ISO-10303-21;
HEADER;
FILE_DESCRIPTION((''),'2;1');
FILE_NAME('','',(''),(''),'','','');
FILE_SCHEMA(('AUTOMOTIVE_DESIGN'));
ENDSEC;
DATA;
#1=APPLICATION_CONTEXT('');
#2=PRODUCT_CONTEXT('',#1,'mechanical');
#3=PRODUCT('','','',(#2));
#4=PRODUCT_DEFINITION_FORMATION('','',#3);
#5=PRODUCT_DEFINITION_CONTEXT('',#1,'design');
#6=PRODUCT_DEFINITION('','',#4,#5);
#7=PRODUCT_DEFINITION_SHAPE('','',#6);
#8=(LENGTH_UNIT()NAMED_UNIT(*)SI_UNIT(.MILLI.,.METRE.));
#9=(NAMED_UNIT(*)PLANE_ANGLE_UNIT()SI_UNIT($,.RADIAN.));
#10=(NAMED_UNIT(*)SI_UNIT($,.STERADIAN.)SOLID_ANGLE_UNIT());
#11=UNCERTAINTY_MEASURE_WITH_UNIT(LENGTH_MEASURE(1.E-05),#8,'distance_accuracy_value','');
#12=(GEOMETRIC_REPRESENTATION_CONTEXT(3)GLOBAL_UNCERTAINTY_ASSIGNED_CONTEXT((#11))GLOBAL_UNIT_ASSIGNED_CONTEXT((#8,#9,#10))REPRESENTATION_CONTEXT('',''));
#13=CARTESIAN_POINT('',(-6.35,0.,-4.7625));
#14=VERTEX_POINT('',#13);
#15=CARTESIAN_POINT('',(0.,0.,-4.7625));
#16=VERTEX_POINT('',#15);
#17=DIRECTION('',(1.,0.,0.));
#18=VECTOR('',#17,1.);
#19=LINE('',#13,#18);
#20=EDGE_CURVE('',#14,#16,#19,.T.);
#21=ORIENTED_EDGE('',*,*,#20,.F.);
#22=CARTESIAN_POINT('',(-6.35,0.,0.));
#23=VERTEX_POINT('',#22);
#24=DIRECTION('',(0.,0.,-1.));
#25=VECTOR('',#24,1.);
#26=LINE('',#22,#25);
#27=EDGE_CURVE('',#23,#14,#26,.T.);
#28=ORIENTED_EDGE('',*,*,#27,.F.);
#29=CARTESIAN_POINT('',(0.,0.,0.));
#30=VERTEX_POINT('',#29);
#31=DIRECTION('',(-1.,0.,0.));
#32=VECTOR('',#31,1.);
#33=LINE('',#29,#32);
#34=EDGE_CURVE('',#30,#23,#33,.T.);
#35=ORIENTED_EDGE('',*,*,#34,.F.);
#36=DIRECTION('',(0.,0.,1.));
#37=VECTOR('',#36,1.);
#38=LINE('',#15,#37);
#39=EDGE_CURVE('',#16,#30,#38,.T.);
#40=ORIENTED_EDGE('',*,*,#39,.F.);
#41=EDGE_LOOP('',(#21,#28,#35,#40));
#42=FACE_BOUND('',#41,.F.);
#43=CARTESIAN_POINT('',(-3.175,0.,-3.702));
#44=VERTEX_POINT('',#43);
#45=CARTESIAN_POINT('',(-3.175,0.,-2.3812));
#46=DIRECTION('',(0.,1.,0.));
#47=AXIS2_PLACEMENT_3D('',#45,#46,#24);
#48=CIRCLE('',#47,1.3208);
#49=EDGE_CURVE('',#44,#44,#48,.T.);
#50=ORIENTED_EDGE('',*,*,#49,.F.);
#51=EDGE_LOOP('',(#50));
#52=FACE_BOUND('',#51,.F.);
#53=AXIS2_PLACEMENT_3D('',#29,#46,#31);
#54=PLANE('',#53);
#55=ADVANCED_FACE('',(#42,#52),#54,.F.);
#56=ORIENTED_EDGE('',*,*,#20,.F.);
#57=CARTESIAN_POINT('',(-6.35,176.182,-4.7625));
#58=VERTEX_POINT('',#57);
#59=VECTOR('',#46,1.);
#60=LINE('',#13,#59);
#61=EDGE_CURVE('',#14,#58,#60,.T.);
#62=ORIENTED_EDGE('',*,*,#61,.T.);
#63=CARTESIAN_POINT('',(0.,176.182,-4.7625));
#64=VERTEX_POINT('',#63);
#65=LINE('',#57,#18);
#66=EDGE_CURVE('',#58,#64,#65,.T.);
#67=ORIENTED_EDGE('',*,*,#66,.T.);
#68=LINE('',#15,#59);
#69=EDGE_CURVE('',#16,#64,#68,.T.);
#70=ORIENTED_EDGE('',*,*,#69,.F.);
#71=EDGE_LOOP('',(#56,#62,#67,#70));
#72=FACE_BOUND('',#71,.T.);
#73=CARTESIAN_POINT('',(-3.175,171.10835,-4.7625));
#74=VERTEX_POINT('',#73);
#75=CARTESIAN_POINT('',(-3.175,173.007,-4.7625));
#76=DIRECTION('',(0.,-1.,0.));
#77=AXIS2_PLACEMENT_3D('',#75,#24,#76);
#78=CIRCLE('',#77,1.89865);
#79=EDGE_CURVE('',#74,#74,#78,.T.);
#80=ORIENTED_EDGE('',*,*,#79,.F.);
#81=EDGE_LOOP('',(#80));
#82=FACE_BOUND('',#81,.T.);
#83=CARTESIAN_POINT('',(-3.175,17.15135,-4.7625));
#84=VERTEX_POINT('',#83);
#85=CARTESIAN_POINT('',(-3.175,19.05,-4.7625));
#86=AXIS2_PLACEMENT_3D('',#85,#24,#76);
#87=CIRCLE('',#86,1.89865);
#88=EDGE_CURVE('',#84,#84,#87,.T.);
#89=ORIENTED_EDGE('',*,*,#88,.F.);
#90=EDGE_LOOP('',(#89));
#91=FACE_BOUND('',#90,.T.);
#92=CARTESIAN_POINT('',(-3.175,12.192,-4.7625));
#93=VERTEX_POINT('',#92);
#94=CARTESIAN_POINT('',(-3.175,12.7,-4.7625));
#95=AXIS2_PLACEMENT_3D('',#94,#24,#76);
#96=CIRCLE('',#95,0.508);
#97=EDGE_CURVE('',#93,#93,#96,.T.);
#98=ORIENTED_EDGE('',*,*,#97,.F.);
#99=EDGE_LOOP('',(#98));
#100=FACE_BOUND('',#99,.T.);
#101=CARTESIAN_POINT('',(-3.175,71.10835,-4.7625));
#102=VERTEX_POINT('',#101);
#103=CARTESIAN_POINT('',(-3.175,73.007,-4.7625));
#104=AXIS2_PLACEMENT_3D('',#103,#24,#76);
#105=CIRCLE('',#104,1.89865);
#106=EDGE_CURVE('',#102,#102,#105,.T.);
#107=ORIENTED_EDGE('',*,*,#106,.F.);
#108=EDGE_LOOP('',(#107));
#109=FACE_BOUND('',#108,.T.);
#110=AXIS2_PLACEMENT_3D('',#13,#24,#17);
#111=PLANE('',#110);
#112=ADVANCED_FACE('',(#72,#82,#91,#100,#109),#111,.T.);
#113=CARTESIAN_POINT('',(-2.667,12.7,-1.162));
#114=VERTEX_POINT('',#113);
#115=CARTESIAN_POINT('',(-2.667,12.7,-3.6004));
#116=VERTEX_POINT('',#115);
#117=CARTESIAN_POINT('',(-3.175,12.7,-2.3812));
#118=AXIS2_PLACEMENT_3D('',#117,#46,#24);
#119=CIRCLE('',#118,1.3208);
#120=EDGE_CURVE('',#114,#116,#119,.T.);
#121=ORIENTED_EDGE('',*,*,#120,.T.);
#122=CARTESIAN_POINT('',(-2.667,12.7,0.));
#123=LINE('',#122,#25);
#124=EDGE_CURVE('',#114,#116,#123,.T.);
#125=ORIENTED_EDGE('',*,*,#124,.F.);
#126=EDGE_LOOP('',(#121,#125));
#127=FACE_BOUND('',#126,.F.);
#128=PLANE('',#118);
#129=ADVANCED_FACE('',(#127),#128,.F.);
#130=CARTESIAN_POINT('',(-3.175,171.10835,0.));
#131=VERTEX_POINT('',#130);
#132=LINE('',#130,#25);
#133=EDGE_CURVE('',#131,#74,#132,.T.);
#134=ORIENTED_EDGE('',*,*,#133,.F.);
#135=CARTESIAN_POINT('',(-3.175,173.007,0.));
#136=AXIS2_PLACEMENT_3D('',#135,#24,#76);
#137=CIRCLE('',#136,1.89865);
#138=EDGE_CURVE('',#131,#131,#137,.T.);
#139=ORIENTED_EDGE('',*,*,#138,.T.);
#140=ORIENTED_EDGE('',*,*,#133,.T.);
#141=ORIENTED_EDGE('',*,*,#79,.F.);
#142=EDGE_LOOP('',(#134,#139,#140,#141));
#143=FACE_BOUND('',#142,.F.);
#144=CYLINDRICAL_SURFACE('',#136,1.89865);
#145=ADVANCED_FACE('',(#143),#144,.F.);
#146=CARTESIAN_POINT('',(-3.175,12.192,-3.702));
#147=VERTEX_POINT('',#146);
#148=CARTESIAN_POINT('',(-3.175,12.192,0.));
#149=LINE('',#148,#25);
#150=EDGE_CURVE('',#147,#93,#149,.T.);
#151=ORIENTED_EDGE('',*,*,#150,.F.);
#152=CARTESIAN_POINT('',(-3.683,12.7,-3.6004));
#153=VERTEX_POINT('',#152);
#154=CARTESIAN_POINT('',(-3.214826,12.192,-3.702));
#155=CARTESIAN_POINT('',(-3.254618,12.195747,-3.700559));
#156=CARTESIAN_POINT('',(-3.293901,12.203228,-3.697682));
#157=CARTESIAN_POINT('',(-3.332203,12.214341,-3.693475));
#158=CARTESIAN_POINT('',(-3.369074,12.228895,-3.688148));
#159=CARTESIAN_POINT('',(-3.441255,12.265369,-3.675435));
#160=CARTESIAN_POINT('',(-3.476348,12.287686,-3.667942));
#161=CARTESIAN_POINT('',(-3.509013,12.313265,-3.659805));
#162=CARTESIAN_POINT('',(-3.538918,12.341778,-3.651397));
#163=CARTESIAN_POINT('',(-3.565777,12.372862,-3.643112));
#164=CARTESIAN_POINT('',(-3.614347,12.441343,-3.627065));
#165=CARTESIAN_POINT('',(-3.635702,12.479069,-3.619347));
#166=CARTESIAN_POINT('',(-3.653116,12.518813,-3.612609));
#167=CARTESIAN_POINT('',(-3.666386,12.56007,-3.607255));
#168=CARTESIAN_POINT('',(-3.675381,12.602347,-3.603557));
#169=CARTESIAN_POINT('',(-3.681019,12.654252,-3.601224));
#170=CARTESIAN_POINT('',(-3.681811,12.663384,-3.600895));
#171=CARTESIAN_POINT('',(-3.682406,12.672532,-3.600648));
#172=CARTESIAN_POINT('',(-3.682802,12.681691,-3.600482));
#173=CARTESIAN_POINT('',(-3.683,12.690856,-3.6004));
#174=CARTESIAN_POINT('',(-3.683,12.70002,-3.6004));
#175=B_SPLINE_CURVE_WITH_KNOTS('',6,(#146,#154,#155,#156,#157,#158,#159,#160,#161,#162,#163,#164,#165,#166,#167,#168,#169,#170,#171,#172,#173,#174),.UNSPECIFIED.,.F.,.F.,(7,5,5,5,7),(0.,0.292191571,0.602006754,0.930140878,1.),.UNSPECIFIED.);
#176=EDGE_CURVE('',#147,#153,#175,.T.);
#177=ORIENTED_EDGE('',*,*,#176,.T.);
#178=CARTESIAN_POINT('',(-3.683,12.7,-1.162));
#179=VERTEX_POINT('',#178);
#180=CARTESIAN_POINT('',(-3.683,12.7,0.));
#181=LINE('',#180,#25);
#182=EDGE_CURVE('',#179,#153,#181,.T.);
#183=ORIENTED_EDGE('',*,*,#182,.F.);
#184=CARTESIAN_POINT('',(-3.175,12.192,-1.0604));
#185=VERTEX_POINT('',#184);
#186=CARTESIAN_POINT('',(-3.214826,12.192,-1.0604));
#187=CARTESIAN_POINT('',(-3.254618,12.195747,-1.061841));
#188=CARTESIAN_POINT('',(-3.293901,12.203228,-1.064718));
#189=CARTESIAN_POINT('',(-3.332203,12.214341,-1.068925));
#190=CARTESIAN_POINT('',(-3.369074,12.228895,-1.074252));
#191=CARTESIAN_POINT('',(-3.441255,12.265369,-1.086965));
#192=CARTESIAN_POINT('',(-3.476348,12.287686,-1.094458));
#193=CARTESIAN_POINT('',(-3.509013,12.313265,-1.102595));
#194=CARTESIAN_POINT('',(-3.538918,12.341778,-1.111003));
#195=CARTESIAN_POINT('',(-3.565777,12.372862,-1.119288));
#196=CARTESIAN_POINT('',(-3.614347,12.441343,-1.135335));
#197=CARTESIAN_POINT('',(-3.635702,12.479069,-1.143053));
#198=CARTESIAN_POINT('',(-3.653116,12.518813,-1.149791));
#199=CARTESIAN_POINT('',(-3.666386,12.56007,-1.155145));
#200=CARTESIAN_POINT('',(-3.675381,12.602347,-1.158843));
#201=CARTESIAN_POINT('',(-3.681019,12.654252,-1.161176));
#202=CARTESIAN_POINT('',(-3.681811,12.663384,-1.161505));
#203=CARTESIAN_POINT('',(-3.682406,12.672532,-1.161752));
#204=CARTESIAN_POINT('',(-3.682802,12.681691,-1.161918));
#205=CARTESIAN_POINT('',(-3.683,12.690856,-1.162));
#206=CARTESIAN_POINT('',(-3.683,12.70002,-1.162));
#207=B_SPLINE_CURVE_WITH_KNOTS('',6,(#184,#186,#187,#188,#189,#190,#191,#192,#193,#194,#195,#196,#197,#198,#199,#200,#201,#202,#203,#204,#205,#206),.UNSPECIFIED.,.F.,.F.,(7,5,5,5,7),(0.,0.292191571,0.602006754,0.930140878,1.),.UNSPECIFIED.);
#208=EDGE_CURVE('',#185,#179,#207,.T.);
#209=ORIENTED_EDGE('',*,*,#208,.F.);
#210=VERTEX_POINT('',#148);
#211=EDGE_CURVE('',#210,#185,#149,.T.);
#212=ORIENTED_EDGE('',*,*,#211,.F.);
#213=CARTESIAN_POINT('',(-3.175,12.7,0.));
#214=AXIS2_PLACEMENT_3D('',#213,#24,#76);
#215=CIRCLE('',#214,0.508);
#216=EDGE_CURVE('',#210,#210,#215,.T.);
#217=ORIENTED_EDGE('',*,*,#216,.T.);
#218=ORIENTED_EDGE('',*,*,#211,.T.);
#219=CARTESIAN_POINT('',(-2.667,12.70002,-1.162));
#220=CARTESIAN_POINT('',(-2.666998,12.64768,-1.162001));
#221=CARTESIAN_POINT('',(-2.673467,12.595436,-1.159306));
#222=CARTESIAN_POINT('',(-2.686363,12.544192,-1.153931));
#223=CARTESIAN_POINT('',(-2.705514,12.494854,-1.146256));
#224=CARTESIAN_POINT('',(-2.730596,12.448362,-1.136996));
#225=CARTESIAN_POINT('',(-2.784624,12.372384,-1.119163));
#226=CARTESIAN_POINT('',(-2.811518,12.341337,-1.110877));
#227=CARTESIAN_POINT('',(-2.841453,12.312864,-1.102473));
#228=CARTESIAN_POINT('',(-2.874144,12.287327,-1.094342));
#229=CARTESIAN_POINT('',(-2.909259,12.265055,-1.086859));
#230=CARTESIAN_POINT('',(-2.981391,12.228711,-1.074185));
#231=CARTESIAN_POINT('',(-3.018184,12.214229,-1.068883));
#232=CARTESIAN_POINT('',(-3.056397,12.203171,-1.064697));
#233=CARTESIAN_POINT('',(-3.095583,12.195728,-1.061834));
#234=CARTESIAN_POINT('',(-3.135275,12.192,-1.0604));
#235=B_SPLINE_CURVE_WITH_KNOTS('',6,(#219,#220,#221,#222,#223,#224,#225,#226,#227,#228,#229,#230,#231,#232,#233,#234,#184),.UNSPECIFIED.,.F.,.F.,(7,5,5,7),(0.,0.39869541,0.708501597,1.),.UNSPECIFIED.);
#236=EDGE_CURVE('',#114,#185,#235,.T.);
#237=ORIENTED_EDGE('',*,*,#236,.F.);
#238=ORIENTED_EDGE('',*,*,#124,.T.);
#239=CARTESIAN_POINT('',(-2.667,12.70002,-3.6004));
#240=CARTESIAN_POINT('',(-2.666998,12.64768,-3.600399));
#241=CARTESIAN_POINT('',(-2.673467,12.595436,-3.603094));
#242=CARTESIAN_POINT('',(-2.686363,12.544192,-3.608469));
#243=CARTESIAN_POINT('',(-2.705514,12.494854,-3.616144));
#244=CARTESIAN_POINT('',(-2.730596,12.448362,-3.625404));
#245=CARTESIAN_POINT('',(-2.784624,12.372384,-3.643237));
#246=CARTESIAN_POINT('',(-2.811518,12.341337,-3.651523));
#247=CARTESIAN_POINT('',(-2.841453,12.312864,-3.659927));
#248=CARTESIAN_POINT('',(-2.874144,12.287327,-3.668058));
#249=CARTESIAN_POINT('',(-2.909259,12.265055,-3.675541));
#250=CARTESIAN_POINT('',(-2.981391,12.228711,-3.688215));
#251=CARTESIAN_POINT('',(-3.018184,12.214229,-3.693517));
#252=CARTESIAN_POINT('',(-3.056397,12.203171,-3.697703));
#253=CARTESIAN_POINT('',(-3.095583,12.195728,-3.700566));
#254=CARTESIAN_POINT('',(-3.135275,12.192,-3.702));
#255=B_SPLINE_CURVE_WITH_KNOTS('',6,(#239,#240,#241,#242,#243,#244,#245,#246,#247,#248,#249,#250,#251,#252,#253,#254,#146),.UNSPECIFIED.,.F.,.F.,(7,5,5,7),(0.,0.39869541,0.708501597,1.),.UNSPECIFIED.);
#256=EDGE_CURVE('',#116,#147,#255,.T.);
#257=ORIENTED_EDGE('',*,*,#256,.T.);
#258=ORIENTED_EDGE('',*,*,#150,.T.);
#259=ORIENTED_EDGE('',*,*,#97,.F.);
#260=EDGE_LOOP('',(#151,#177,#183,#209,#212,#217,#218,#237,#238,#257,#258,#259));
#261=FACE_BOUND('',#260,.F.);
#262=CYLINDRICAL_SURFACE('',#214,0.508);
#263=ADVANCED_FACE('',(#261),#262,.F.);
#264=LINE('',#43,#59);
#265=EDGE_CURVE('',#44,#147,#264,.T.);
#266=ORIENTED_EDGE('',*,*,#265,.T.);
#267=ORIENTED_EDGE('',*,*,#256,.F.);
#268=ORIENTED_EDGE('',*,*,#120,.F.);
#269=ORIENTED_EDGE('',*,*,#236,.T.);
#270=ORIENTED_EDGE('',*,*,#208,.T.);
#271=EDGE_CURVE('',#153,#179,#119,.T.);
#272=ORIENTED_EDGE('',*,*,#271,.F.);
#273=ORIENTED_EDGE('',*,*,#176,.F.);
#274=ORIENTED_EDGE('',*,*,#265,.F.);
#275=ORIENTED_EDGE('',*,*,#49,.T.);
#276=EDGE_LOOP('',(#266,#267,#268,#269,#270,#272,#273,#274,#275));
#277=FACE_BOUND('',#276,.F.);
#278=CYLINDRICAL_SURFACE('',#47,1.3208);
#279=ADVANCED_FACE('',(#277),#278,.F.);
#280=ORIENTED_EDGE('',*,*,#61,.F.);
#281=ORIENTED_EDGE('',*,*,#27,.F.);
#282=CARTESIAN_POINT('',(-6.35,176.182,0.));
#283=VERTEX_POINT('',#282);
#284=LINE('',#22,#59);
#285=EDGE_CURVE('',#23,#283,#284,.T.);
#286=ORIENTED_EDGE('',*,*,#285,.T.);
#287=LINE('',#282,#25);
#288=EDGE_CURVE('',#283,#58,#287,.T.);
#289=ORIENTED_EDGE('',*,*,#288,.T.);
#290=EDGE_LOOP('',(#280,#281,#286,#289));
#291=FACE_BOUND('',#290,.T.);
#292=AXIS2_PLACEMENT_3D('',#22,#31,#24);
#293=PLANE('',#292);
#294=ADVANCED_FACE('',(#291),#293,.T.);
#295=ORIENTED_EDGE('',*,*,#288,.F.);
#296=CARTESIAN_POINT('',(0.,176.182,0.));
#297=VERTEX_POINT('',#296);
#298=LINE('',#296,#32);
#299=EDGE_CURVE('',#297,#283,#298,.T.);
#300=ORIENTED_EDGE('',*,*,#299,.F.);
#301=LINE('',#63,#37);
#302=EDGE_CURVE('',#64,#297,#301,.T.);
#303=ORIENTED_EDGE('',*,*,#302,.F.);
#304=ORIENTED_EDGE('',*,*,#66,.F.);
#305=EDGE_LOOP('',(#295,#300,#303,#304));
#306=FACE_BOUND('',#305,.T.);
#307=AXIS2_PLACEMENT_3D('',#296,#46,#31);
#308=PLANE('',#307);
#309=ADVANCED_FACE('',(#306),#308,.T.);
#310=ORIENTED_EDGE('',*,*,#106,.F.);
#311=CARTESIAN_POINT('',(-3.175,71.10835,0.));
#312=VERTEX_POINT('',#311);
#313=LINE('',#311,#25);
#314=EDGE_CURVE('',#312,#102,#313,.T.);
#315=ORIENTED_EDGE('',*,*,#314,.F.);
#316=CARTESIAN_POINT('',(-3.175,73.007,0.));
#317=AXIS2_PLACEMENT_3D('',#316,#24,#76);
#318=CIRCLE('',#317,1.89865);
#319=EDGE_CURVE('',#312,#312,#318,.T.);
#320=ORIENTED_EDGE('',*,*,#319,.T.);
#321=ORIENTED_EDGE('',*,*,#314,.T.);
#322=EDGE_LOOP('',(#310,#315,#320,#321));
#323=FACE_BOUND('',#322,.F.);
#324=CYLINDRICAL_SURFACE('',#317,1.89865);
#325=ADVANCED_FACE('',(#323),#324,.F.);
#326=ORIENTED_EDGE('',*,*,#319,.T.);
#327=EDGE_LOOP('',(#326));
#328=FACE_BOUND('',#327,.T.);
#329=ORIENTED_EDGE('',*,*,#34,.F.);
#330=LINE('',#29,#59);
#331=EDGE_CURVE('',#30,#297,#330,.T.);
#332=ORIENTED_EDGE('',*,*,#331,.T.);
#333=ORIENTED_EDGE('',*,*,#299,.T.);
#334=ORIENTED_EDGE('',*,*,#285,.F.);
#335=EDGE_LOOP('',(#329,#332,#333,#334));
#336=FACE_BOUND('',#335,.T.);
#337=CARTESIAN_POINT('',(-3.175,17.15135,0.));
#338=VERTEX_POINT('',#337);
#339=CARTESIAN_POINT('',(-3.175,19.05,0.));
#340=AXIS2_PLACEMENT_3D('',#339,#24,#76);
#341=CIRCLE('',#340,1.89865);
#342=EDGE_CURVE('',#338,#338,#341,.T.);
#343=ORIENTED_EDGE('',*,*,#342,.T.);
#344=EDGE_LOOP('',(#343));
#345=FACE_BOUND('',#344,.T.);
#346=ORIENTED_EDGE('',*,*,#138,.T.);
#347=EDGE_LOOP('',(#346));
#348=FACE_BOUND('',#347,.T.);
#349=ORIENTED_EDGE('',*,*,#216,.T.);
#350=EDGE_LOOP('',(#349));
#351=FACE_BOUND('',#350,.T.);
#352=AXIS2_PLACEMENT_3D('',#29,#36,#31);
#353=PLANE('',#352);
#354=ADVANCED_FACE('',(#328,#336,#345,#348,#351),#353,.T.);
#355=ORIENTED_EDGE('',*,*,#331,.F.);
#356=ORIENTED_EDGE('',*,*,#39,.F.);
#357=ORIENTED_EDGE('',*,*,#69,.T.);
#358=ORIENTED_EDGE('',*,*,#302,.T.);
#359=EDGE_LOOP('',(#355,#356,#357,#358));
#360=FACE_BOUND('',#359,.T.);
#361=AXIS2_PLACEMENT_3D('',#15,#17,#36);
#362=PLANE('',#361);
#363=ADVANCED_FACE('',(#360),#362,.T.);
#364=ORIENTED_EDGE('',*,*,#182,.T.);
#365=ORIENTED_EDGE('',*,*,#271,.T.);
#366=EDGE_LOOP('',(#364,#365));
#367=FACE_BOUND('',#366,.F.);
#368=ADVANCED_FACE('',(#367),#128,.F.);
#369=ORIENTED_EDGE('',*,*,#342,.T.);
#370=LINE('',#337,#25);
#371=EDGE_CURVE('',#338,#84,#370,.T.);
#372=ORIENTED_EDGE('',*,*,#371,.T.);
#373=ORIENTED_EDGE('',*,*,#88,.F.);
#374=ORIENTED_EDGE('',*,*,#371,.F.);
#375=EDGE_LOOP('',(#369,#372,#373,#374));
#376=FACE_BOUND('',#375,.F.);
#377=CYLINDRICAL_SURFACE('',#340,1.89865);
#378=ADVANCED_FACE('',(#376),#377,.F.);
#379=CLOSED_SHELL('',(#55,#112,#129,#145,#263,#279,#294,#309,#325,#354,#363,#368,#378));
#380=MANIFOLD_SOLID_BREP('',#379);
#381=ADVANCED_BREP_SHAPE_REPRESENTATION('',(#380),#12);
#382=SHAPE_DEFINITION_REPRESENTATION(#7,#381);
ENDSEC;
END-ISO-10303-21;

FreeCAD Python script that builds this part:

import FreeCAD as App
import Part
import Sketcher

V = App.Vector
Q = App.Units.Quantity


def add_polygon(sketch, points):
    """Adds a closed chain of lines whose ends are joined by coincident constraints."""
    first, n = sketch.GeometryCount, len(points)
    for a, b in zip(points, points[1:] + points[:1]):
        sketch.addGeometry(Part.LineSegment(App.Vector(*a, 0), App.Vector(*b, 0)), False)
    for i in range(n):
        sketch.addConstraint(Sketcher.Constraint("Coincident", first + i, 2, first + (i + 1) % n, 1))

doc = App.newDocument("Part")
body = doc.addObject("PartDesign::Body", "Body")

# Sketch on XZ plane
sketch1 = body.newObject("Sketcher::SketchObject", "Sketch")
sketch1.AttachmentSupport = (doc.getObject("XZ_Plane"), [""])
sketch1.MapMode = "FlatFace"
add_polygon(sketch1, [(-6.3, 0), (0, 0), (0, -4.8), (-6.3, -4.8)])  # lines 0-3
sketch1.addConstraint([
    Sketcher.Constraint("Horizontal", 0),
    Sketcher.Constraint("Vertical", 1),
    Sketcher.Constraint("Horizontal", 2),
    Sketcher.Constraint("Vertical", 3),
    Sketcher.Constraint("Coincident", 0, 2, -1, 1),
    Sketcher.Constraint("DistanceX", 0, 1, 0, 2, Q("0.25 in")),
    Sketcher.Constraint("DistanceY", 1, 2, 1, 1, Q("0.1875 in")),
])
pad1 = body.newObject("PartDesign::Pad", "Pad")
pad1.Profile = sketch1
pad1.Length = Q("6.9362992 in")
pad1.Reversed = True

# Sketch on XY plane
sketch2 = body.newObject("Sketcher::SketchObject", "Sketch001")
sketch2.AttachmentSupport = (doc.getObject("XY_Plane"), [""])
sketch2.MapMode = "FlatFace"
sketch2.addGeometry(Part.Circle(V(-3.2, 19.1, 0), V(0, 0, 1), 1.9), False)
sketch2.addConstraint([
    Sketcher.Constraint("Diameter", 0, Q("0.1495 in")),
    Sketcher.Constraint("DistanceY", -1, 1, 0, 3, Q("0.75 in")),
    Sketcher.Constraint("DistanceX", 0, 3, -1, 1, Q("0.125 in")),
])
doc.recompute()
hole = body.newObject("PartDesign::Hole", "Hole")
hole.Profile = sketch2
hole.ThreadType = "None"
hole.Diameter = Q("0.1495 in")
hole.DepthType = "ThroughAll"

# Sketch on XY plane
sketch3 = body.newObject("Sketcher::SketchObject", "Sketch002")
sketch3.AttachmentSupport = (doc.getObject("XY_Plane"), [""])
sketch3.MapMode = "FlatFace"
sketch3.addGeometry(Part.Circle(V(-3.2, 12.7, 0), V(0, 0, 1), 0.5), False)
sketch3.addConstraint([
    Sketcher.Constraint("Diameter", 0, Q("0.04 in")),
    Sketcher.Constraint("DistanceY", -1, 1, 0, 3, Q("0.5 in")),
    Sketcher.Constraint("DistanceX", 0, 3, -1, 1, Q("0.125 in")),
])
doc.recompute()
hole2 = body.newObject("PartDesign::Hole", "Hole001")
hole2.Profile = sketch3
hole2.ThreadType = "None"
hole2.Diameter = Q("0.04 in")
hole2.DepthType = "ThroughAll"

# Sketch on XY plane
sketch4 = body.newObject("Sketcher::SketchObject", "Sketch003")
sketch4.AttachmentSupport = (doc.getObject("XY_Plane"), [""])
sketch4.MapMode = "FlatFace"
sketch4.addGeometry(Part.Circle(V(-3.2, 173, 0), V(0, 0, 1), 1.9), False)
sketch4.addConstraint([
    Sketcher.Constraint("Diameter", 0, Q("0.1495 in")),
    Sketcher.Constraint("DistanceX", 0, 3, -1, 1, Q("0.125 in")),
    Sketcher.Constraint("DistanceY", -1, 1, 0, 3, Q("6.8113 in")),
])
doc.recompute()
hole3 = body.newObject("PartDesign::Hole", "Hole002")
hole3.Profile = sketch4
hole3.ThreadType = "None"
hole3.Diameter = Q("0.1495 in")
hole3.DepthType = "ThroughAll"

# Sketch on XZ plane
sketch5 = body.newObject("Sketcher::SketchObject", "Sketch004")
sketch5.AttachmentSupport = (doc.getObject("XZ_Plane"), [""])
sketch5.MapMode = "FlatFace"
sketch5.addGeometry(Part.Circle(V(-3.2, -2.4, 0), V(0, 0, 1), 1.3), False)
sketch5.addConstraint([
    Sketcher.Constraint("Diameter", 0, Q("0.104 in")),
    Sketcher.Constraint("DistanceX", 0, 3, -1, 1, Q("0.125 in")),
    Sketcher.Constraint("DistanceY", 0, 3, -1, 1, Q("0.093748 in")),
])
doc.recompute()
hole4 = body.newObject("PartDesign::Hole", "Hole003")
hole4.Profile = sketch5
hole4.ThreadType = "None"
hole4.Diameter = Q("0.104 in")
hole4.DepthType = "Dimension"
hole4.Depth = Q("0.5 in")
hole4.DrillPoint = "Flat"

# Sketch on XY plane
sketch6 = body.newObject("Sketcher::SketchObject", "Sketch005")
sketch6.AttachmentSupport = (doc.getObject("XY_Plane"), [""])
sketch6.MapMode = "FlatFace"
sketch6.addGeometry(Part.Circle(V(-3.2, 73, 0), V(0, 0, 1), 1.9), False)
sketch6.addConstraint([
    Sketcher.Constraint("Diameter", 0, Q("0.1495 in")),
    Sketcher.Constraint("DistanceX", 0, 3, -1, 1, Q("0.125 in")),
    Sketcher.Constraint("DistanceY", -1, 1, 0, 3, Q("2.8743 in")),
])
doc.recompute()
hole5 = body.newObject("PartDesign::Hole", "Hole004")
hole5.Profile = sketch6
hole5.ThreadType = "None"
hole5.Diameter = Q("0.1495 in")
hole5.DepthType = "ThroughAll"

doc.recompute()
